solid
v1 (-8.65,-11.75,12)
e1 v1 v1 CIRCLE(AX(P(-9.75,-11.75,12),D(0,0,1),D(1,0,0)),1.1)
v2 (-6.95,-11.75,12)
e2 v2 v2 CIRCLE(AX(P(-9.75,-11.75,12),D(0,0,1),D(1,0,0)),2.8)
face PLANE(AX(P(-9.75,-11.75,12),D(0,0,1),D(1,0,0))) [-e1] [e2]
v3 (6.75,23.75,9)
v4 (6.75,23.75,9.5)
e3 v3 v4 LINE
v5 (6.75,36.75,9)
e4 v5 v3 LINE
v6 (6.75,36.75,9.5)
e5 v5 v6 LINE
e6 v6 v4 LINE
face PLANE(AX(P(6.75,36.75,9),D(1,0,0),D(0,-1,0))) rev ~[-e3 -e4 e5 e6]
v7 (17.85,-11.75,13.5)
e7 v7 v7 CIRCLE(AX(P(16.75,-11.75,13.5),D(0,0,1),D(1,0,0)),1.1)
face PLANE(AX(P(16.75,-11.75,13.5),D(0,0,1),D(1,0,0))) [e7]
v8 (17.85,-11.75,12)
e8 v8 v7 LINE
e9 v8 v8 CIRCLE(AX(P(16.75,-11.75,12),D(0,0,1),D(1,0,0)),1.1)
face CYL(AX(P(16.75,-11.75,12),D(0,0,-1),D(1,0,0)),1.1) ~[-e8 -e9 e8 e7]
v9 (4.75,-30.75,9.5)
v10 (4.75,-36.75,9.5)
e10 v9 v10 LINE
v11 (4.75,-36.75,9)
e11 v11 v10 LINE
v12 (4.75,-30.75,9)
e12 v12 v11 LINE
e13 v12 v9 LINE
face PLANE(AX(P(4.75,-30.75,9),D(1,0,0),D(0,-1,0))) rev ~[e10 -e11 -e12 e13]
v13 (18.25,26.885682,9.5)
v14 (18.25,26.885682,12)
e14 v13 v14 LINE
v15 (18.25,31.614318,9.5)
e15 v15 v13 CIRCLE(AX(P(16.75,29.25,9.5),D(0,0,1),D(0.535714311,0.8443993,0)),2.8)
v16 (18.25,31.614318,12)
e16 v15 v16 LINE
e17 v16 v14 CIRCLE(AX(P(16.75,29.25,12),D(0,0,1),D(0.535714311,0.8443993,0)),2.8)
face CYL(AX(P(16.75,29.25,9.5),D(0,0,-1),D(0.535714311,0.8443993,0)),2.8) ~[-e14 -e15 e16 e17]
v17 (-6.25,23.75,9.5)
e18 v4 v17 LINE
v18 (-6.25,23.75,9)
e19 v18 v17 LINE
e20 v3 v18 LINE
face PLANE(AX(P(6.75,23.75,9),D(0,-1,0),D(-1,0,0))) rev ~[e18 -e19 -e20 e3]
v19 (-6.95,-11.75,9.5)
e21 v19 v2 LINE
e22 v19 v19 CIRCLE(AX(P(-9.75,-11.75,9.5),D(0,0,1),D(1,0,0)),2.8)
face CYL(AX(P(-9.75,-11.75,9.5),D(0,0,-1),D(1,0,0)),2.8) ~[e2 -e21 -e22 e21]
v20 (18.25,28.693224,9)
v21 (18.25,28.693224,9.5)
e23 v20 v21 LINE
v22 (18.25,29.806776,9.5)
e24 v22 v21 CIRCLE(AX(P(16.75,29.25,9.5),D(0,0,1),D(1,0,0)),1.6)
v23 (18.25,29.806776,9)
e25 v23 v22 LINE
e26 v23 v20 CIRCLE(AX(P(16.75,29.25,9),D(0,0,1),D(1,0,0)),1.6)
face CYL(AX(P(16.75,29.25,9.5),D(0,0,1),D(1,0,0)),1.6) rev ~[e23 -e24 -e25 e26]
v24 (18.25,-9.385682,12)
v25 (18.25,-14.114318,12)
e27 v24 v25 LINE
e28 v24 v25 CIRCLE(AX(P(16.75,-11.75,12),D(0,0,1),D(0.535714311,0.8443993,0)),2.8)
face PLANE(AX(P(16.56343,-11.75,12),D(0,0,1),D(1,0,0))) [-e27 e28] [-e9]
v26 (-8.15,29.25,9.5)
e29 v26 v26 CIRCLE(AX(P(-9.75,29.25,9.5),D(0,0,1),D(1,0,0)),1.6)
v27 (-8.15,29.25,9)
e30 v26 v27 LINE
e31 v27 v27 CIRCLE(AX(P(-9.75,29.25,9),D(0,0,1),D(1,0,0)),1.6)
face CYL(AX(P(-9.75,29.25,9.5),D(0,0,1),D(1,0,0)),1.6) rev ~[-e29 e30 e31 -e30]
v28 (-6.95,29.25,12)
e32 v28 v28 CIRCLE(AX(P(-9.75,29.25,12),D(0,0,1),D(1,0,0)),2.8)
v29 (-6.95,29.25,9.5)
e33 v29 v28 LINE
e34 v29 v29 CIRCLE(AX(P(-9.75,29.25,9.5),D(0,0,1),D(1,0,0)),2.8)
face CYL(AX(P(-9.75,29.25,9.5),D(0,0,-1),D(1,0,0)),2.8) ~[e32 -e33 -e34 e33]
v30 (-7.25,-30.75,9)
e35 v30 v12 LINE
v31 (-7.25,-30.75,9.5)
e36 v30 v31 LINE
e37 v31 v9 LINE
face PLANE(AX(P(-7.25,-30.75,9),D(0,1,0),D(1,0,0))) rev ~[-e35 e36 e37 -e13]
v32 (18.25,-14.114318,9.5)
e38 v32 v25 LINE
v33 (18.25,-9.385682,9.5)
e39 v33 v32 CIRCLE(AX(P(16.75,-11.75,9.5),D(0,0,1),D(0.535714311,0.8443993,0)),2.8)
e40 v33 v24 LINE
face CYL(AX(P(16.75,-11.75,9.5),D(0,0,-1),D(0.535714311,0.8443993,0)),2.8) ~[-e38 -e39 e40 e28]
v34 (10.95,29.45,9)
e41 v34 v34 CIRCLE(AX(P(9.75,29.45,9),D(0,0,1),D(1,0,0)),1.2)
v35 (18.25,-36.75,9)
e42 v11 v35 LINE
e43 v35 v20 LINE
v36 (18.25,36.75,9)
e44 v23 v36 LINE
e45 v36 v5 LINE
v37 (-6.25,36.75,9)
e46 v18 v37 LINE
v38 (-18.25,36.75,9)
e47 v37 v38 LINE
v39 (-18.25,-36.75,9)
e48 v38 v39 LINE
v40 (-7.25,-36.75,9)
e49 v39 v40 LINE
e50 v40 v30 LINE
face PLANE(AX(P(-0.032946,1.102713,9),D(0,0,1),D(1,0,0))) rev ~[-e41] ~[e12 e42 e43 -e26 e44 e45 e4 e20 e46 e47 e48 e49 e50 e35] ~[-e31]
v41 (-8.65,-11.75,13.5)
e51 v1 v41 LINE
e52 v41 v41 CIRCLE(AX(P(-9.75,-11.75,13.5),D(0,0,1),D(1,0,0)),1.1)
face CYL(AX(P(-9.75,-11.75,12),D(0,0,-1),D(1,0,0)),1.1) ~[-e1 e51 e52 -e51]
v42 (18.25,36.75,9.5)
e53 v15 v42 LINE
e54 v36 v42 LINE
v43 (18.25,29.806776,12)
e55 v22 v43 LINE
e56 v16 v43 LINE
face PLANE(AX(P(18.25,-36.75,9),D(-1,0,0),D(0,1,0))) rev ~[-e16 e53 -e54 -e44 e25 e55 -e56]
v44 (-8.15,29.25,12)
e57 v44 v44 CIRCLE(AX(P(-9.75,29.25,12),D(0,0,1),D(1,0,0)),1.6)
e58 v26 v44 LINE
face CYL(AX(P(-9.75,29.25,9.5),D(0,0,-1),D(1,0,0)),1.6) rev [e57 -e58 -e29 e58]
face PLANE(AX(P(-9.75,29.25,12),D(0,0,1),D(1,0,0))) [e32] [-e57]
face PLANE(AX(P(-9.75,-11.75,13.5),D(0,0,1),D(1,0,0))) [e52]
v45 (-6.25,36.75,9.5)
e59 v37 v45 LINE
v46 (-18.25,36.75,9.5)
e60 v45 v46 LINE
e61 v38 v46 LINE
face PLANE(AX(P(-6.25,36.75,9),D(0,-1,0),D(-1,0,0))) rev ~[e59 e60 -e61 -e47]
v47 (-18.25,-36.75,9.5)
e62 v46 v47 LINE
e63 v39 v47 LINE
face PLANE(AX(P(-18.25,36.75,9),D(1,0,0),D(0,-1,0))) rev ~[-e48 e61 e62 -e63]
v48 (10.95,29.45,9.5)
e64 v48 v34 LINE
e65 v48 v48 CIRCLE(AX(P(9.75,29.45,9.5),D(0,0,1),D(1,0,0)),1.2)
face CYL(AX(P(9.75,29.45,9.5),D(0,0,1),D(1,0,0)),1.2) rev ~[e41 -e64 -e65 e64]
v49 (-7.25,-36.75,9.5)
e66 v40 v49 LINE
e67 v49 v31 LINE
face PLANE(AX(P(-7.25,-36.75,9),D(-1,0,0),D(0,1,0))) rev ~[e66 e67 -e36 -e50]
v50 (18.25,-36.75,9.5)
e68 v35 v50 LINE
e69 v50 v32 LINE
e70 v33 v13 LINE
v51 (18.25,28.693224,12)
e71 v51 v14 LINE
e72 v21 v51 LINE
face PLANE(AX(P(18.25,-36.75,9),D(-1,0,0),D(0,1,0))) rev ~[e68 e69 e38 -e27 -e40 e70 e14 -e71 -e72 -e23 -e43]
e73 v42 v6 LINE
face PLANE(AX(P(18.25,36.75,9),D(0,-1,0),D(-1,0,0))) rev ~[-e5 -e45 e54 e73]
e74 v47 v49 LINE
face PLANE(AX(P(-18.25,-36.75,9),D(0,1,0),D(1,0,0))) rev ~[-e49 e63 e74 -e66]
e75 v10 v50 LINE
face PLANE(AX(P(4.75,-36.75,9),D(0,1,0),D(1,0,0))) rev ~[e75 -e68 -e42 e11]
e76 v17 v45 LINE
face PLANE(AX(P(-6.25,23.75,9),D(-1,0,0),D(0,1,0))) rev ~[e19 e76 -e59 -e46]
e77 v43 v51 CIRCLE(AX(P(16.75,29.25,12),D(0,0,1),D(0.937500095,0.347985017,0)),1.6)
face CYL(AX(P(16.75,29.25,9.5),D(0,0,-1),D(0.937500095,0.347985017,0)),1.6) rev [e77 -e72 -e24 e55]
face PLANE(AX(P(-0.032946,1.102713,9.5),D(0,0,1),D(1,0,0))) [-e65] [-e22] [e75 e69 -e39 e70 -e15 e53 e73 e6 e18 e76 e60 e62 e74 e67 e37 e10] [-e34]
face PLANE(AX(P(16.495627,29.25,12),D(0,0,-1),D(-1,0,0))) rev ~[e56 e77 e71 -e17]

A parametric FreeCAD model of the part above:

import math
import FreeCAD as App
import Part
import Sketcher

doc = App.newDocument("Part")
body = doc.addObject("PartDesign::Body", "Body")

sketch1 = body.newObject("Sketcher::SketchObject", "Sketch")
sketch1.AttachmentSupport = (doc.getObject("XY_Plane"), [""])
sketch1.MapMode = "FlatFace"
sketch1.AttachmentOffset = App.Placement(App.Vector(0, 0, 9), App.Rotation())
sketch1.addGeometry([
    Part.LineSegment(App.Vector(18, -37, 0), App.Vector(18, 37, 0)),
    Part.LineSegment(App.Vector(18, 37, 0), App.Vector(7, 37, 0)),
    Part.LineSegment(App.Vector(7, 37, 0), App.Vector(7, 24, 0)),
    Part.LineSegment(App.Vector(7, 24, 0), App.Vector(-6, 24, 0)),
    Part.LineSegment(App.Vector(-6, 24, 0), App.Vector(-6, 37, 0)),
    Part.LineSegment(App.Vector(-6, 37, 0), App.Vector(-18, 37, 0)),
    Part.LineSegment(App.Vector(-18, 37, 0), App.Vector(-18, -37, 0)),
    Part.LineSegment(App.Vector(-18, -37, 0), App.Vector(-7, -37, 0)),
    Part.LineSegment(App.Vector(-7, -37, 0), App.Vector(-7, -31, 0)),
    Part.LineSegment(App.Vector(-7, -31, 0), App.Vector(5, -31, 0)),
    Part.LineSegment(App.Vector(5, -31, 0), App.Vector(5, -37, 0)),
    Part.LineSegment(App.Vector(5, -37, 0), App.Vector(18, -37, 0)),
], False)
sketch1.addConstraint([
    Sketcher.Constraint("Coincident", 0, 2, 1, 1),
    Sketcher.Constraint("Coincident", 1, 2, 2, 1),
    Sketcher.Constraint("Coincident", 2, 2, 3, 1),
    Sketcher.Constraint("Coincident", 3, 2, 4, 1),
    Sketcher.Constraint("Coincident", 4, 2, 5, 1),
    Sketcher.Constraint("Coincident", 5, 2, 6, 1),
    Sketcher.Constraint("Coincident", 6, 2, 7, 1),
    Sketcher.Constraint("Coincident", 7, 2, 8, 1),
    Sketcher.Constraint("Coincident", 8, 2, 9, 1),
    Sketcher.Constraint("Coincident", 9, 2, 10, 1),
    Sketcher.Constraint("Coincident", 10, 2, 11, 1),
    Sketcher.Constraint("Coincident", 11, 2, 0, 1),
    Sketcher.Constraint("Vertical", 0),
    Sketcher.Constraint("Horizontal", 1),
    Sketcher.Constraint("Vertical", 2),
    Sketcher.Constraint("Horizontal", 3),
    Sketcher.Constraint("Vertical", 4),
    Sketcher.Constraint("Horizontal", 5),
    Sketcher.Constraint("Vertical", 6),
    Sketcher.Constraint("Horizontal", 7),
    Sketcher.Constraint("Vertical", 8),
    Sketcher.Constraint("Horizontal", 9),
    Sketcher.Constraint("Vertical", 10),
    Sketcher.Constraint("Horizontal", 11),
    Sketcher.Constraint("Symmetric", 0, 2, 6, 2, -1, 1),
    Sketcher.Constraint("Horizontal", 1, 2, 4, 2),
    Sketcher.Constraint("Horizontal", 7, 2, 10, 2),
    Sketcher.Constraint("Equal", 5, 9),
    Sketcher.Constraint("Equal", 3, 2),
    Sketcher.Constraint("DistanceX", 3, 2, 3, 1, 13.0),
    Sketcher.Constraint("DistanceX", 5, 2, 5, 1, 12.0),
    Sketcher.Constraint("DistanceX", 7, 1, 7, 2, 11.0),
    Sketcher.Constraint("DistanceY", 8, 1, 8, 2, 6.0),
    Sketcher.Constraint("DistanceX", 1, 2, 1, 1, 11.5),
    Sketcher.Constraint("DistanceY", 0, 1, 0, 2, 73.5),
])
pad1 = body.newObject("PartDesign::Pad", "Pad")
pad1.Profile = sketch1
pad1.Length = 0.5

sketch2 = body.newObject("Sketcher::SketchObject", "Sketch001")
sketch2.AttachmentSupport = (doc.getObject("XY_Plane"), [""])
sketch2.MapMode = "FlatFace"
sketch2.AttachmentOffset = App.Placement(App.Vector(0, 0, 9.5), App.Rotation())
sketch2.addGeometry([
    Part.Circle(App.Vector(-9.8, 29.2, 0), App.Vector(0, 0, 1), 1.6),
    Part.Circle(App.Vector(16.8, 29.2, 0), App.Vector(0, 0, 1), 1.6),
    Part.Circle(App.Vector(9.8, 29.4, 0), App.Vector(0, 0, 1), 1.2),
], False)
sketch2.addConstraint([
    Sketcher.Constraint("Equal", 0, 1),
    Sketcher.Constraint("Horizontal", 0, 3, 1, 3),
    Sketcher.Constraint("Diameter", 0, 3.2),
    Sketcher.Constraint("Diameter", 2, 2.4),
    Sketcher.Constraint("DistanceX", 2, 3, 1, 3, 7.0),
    Sketcher.Constraint("DistanceX", 0, 3, 1, 3, 26.5),
    Sketcher.Constraint("DistanceY", 1, 3, 2, 3, 0.2),
    Sketcher.Constraint("DistanceX", 0, 3, -1, 1, 9.75),
    Sketcher.Constraint("DistanceY", -1, 1, 0, 3, 29.25),
])
pocket1 = body.newObject("PartDesign::Pocket", "Pocket")
pocket1.Profile = sketch2
pocket1.Type = "ThroughAll"

sketch3 = body.newObject("Sketcher::SketchObject", "Sketch002")
sketch3.AttachmentSupport = (doc.getObject("XY_Plane"), [""])
sketch3.MapMode = "FlatFace"
sketch3.AttachmentOffset = App.Placement(App.Vector(0, 0, 9.5), App.Rotation())
sketch3.addGeometry([
    Part.Circle(App.Vector(-9.8, 29.2, 0), App.Vector(0, 0, 1), 2.8),
    Part.Circle(App.Vector(-9.8, 29.2, 0), App.Vector(0, 0, 1), 1.6),
    Part.Circle(App.Vector(-9.8, -11.8, 0), App.Vector(0, 0, 1), 2.8),
    Part.ArcOfCircle(Part.Circle(App.Vector(16.7, 29.2, 0), App.Vector(0, 0, 1), 1.6), math.radians(20), math.radians(340)),
    Part.LineSegment(App.Vector(18.2, 29.8, 0), App.Vector(18.2, 31.6, 0)),
    Part.ArcOfCircle(Part.Circle(App.Vector(16.7, 29.2, 0), App.Vector(0, 0, 1), 2.8), math.radians(58), math.radians(302)),
    Part.LineSegment(App.Vector(18.2, 26.9, 0), App.Vector(18.2, 28.7, 0)),
    Part.ArcOfCircle(Part.Circle(App.Vector(16.7, -11.8, 0), App.Vector(0, 0, 1), 2.8), math.radians(58), math.radians(302)),
    Part.LineSegment(App.Vector(18.2, -14.1, 0), App.Vector(18.2, -9.4, 0)),
], False)
sketch3.addConstraint([
    Sketcher.Constraint("Coincident", 3, 1, 4, 1),
    Sketcher.Constraint("Coincident", 4, 2, 5, 1),
    Sketcher.Constraint("Coincident", 5, 2, 6, 1),
    Sketcher.Constraint("Coincident", 6, 2, 3, 2),
    Sketcher.Constraint("Coincident", 7, 1, 8, 2),
    Sketcher.Constraint("Coincident", 8, 1, 7, 2),
    Sketcher.Constraint("Vertical", 4),
    Sketcher.Constraint("Vertical", 6),
    Sketcher.Constraint("Vertical", 8),
    Sketcher.Constraint("Coincident", 1, 3, 0, 3),
    Sketcher.Constraint("Coincident", 5, 3, 3, 3),
    Sketcher.Constraint("Equal", 0, 2),
    Sketcher.Constraint("Equal", 1, 3),
    Sketcher.Constraint("Equal", 2, 5),
    Sketcher.Constraint("Equal", 5, 7),
    Sketcher.Constraint("Horizontal", 1, 3, 3, 3),
    Sketcher.Constraint("Horizontal", 2, 3, 7, 3),
    Sketcher.Constraint("Vertical", 1, 3, 2, 3),
    Sketcher.Constraint("Vertical", 5, 3, 7, 3),
    Sketcher.Constraint("Vertical", 4, 2, 5, 2),
    Sketcher.Constraint("Vertical", 6, 2, 7, 1),
    Sketcher.Constraint("Diameter", 0, 5.6),
    Sketcher.Constraint("Diameter", 1, 3.2),
    Sketcher.Constraint("DistanceY", 2, 3, 0, 3, 41.0),
    Sketcher.Constraint("DistanceX", 0, 3, 3, 1, 28.0),
    Sketcher.Constraint("DistanceX", 0, 3, 3, 3, 26.5),
    Sketcher.Constraint("DistanceX", 0, 3, -1, 1, 9.75),
    Sketcher.Constraint("DistanceY", -1, 1, 0, 3, 29.25),
])
pad2 = body.newObject("PartDesign::Pad", "Pad001")
pad2.Profile = sketch3
pad2.Length = 2.5

sketch4 = body.newObject("Sketcher::SketchObject", "Sketch003")
sketch4.AttachmentSupport = (doc.getObject("XY_Plane"), [""])
sketch4.MapMode = "FlatFace"
sketch4.AttachmentOffset = App.Placement(App.Vector(0, 0, 12), App.Rotation())
sketch4.addGeometry([
    Part.Circle(App.Vector(-9.8, -11.8, 0), App.Vector(0, 0, 1), 1.1),
    Part.Circle(App.Vector(16.8, -11.8, 0), App.Vector(0, 0, 1), 1.1),
], False)
sketch4.addConstraint([
    Sketcher.Constraint("Equal", 0, 1),
    Sketcher.Constraint("Horizontal", 0, 3, 1, 3),
    Sketcher.Constraint("Diameter", 0, 2.2),
    Sketcher.Constraint("DistanceX", 0, 3, 1, 3, 26.5),
    Sketcher.Constraint("DistanceX", 0, 3, -1, 1, 9.75),
    Sketcher.Constraint("DistanceY", 0, 3, -1, 1, 11.75),
])
pad3 = body.newObject("PartDesign::Pad", "Pad002")
pad3.Profile = sketch4
pad3.Length = 1.5

doc.recompute()
